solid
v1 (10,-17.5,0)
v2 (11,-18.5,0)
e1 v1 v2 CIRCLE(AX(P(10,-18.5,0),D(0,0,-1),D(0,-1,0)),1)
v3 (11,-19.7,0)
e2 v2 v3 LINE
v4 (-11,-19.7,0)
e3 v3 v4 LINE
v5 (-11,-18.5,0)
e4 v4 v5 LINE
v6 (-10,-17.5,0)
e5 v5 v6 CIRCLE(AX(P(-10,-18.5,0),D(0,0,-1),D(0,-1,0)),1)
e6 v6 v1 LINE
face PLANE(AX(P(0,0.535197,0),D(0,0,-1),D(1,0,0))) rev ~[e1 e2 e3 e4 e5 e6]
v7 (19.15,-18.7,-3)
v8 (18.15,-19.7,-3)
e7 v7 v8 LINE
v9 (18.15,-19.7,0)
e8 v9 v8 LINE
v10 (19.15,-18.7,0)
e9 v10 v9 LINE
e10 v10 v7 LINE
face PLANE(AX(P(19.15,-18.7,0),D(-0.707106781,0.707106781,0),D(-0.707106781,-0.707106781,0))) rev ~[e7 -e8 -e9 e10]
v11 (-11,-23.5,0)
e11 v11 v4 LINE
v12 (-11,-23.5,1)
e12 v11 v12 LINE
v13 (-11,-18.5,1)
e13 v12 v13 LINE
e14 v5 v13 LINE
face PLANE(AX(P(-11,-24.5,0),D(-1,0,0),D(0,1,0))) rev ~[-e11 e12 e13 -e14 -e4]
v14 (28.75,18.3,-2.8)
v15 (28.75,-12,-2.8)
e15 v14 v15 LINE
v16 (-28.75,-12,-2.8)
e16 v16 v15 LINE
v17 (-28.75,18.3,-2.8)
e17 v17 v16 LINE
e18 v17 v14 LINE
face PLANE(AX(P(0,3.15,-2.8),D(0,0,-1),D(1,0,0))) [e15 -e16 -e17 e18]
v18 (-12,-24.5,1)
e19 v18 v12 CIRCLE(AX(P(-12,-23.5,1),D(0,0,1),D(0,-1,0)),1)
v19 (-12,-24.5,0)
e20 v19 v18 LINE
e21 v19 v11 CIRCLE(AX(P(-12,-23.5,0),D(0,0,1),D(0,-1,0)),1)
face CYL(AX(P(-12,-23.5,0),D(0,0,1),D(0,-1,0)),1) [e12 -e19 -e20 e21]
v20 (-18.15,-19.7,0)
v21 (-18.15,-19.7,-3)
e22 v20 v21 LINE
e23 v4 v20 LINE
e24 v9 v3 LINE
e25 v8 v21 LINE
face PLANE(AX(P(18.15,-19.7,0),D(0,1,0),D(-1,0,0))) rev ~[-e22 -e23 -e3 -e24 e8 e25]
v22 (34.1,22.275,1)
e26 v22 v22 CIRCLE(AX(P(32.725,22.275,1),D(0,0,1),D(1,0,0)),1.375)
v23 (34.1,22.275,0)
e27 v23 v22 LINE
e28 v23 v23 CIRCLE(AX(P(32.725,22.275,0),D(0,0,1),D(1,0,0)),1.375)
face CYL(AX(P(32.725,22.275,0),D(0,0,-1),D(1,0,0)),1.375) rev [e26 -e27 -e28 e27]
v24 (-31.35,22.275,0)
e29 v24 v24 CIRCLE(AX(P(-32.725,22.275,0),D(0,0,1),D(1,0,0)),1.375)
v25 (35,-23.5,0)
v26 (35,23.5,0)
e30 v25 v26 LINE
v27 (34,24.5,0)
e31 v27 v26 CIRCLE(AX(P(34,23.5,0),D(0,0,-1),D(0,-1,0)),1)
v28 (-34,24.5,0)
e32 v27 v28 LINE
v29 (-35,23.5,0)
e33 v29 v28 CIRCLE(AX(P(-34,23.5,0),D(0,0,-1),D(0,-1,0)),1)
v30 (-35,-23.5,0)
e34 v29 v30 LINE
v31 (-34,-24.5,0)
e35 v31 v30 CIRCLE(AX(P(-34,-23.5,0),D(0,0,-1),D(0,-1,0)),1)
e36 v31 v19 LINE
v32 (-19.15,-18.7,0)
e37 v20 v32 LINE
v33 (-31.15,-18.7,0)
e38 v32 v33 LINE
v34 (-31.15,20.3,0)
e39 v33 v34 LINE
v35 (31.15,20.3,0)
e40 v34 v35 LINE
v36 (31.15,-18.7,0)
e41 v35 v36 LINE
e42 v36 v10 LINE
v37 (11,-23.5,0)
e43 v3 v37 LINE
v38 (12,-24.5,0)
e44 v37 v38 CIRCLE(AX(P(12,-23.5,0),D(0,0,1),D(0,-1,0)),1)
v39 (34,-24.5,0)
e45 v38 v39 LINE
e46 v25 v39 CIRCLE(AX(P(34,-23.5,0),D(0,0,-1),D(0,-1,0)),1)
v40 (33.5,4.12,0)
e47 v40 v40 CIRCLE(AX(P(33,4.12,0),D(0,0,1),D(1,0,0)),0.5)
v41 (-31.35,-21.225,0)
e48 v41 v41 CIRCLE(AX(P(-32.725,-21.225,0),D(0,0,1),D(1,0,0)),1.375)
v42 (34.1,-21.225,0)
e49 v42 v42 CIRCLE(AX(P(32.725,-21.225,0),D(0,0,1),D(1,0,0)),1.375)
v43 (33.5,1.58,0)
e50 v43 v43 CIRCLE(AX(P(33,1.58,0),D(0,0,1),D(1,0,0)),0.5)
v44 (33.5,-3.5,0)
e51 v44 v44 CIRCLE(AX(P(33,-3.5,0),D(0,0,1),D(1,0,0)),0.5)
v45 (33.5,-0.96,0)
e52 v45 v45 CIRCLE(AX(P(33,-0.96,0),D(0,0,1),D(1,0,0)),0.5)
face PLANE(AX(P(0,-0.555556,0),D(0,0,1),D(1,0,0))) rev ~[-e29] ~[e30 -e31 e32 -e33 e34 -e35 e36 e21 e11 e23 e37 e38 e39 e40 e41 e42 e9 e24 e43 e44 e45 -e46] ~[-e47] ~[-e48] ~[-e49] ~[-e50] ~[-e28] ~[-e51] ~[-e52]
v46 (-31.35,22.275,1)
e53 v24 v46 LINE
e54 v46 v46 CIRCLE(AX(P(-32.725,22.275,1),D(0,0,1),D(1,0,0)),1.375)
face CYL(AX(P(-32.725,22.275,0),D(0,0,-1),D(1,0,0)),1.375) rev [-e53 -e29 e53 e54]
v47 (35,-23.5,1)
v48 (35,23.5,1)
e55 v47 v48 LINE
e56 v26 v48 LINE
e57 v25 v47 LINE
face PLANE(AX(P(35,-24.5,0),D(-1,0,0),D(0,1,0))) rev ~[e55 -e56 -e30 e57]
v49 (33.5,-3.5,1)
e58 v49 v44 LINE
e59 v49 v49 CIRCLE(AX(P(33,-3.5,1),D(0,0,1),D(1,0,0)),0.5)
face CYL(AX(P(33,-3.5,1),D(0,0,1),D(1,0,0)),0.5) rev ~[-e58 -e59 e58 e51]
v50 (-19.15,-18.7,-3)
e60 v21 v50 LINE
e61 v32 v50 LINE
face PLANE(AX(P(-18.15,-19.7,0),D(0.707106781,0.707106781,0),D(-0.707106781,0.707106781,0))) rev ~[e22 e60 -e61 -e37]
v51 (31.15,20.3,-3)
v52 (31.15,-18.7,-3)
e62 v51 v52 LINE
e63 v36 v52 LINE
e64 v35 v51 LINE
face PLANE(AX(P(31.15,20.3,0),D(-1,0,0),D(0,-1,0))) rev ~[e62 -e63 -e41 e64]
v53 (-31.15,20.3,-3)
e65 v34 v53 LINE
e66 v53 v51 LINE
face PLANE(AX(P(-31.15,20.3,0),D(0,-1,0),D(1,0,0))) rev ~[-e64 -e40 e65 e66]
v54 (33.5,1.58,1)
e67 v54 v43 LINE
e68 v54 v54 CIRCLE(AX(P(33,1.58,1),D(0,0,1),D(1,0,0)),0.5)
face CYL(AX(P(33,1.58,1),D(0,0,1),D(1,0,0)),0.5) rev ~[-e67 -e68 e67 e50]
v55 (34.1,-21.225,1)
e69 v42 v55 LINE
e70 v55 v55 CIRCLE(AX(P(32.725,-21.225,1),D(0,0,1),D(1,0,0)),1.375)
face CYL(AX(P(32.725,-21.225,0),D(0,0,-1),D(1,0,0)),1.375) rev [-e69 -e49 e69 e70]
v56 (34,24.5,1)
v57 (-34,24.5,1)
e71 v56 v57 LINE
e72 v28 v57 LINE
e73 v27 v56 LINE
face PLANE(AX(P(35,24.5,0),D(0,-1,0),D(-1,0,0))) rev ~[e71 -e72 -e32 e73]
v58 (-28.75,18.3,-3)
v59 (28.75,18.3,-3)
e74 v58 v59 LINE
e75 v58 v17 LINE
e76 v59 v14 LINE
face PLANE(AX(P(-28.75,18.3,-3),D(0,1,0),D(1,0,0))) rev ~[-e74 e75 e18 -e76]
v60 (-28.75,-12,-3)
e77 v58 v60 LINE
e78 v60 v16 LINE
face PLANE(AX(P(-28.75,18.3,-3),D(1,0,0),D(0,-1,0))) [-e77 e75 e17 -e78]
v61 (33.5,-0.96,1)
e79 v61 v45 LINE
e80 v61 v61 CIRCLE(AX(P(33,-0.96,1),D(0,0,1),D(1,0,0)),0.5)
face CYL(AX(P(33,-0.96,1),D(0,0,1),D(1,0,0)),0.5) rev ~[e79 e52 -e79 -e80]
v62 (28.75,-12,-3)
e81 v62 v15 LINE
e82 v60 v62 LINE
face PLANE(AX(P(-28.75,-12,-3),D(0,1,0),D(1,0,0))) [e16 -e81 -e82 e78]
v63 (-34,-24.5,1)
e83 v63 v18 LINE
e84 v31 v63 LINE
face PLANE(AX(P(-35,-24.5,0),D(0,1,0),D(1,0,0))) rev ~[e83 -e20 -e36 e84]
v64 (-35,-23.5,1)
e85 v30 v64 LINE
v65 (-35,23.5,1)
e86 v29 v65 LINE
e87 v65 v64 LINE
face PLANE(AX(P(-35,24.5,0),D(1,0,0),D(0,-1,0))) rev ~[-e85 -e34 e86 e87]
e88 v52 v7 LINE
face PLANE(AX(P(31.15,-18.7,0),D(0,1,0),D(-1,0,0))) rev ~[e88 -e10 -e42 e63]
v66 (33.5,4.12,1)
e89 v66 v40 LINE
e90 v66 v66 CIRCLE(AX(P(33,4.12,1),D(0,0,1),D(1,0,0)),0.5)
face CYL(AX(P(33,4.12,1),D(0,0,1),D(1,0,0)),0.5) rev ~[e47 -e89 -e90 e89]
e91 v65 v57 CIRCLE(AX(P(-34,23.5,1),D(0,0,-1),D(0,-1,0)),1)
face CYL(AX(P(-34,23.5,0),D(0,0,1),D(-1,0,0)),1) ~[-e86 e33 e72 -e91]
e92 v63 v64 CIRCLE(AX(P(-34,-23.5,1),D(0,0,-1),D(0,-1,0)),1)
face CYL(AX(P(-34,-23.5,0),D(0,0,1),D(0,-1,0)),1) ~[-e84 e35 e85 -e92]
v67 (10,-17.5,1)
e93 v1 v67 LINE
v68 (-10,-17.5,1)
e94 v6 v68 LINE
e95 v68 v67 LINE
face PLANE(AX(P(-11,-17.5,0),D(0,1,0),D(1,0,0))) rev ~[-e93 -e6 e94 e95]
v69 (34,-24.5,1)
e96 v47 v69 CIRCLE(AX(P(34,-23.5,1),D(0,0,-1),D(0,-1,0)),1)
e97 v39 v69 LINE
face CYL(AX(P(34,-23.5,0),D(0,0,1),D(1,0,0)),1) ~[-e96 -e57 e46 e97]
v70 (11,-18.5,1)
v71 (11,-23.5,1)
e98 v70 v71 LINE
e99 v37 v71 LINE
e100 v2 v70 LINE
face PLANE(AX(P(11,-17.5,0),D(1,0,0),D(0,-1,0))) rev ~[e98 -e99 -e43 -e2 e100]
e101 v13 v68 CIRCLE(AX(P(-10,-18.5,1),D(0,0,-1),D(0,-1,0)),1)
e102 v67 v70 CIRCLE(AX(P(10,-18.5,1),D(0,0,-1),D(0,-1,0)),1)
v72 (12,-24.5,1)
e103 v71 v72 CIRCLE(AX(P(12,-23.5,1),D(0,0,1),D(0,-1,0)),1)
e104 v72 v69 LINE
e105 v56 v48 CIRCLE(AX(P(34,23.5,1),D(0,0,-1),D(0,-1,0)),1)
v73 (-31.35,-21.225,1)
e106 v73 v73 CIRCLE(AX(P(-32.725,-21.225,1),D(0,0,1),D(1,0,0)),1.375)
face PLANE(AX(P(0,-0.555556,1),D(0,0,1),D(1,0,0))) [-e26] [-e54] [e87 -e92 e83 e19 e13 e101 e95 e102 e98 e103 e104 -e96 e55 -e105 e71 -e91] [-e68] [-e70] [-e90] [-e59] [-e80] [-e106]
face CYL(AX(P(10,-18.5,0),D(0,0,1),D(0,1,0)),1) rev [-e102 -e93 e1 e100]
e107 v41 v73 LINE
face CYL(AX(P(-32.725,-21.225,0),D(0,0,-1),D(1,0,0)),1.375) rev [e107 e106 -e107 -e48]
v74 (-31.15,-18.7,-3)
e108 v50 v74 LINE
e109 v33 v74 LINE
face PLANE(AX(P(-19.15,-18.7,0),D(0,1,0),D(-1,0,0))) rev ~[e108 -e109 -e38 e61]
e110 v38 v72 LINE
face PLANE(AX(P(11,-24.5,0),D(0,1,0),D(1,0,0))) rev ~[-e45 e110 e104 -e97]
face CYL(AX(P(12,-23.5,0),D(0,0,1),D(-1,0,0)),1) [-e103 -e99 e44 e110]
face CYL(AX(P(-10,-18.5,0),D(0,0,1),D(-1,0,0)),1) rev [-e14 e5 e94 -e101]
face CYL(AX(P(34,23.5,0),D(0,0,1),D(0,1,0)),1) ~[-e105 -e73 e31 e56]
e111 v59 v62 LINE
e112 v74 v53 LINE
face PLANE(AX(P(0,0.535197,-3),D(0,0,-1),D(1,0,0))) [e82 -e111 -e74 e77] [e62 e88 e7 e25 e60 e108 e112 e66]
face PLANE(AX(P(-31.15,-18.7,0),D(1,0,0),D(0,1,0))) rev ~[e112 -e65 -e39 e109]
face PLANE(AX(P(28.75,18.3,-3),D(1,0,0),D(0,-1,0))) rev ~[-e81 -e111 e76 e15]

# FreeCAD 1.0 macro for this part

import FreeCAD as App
import Part
import Sketcher

V = App.Vector
Q = App.Units.Quantity


def edges_at(feature, points):
    """Names of the edges that pass closest to the given points."""
    edges = feature.Shape.Edges
    near = lambda p: min(range(len(edges)), key=lambda i: edges[i].distToShape(Part.Vertex(*p))[0])
    return sorted({f"Edge{near(p) + 1}" for p in points})


def add_polygon(sketch, points):
    """Adds a closed chain of lines whose ends are joined by coincident constraints."""
    first, n = sketch.GeometryCount, len(points)
    for a, b in zip(points, points[1:] + points[:1]):
        sketch.addGeometry(Part.LineSegment(App.Vector(*a, 0), App.Vector(*b, 0)), False)
    for i in range(n):
        sketch.addConstraint(Sketcher.Constraint("Coincident", first + i, 2, first + (i + 1) % n, 1))

doc = App.newDocument("Part")
params = doc.addObject("Spreadsheet::Sheet", "Params")
for row, (alias, value) in enumerate([
    ("sketch1_diameter", "2.75 mm"),
    ("sketch1_width", "24 mm"),
    ("sketch1_width2", "22 mm"),
    ("sketch1_height", "7 mm"),
    ("sketch1_height2", "49 mm"),
    ("pad1_length", "1 mm"),
    ("fillet_radius", "1 mm"),
    ("sketch2_width", "12 mm"),
    ("sketch2_height", "39 mm"),
    ("sketch2_width2", "62.3 mm"),
    ("sketch2_width3", "36.3 mm"),
    ("pad2_length", "3 mm"),
    ("sketch3_width", "57.5 mm"),
    ("sketch3_height", "30.3 mm"),
    ("pocket1_length", "0.2 mm"),
    ("sketch4_diameter", "1 mm"),
], start=1):
    params.set(f"A{row}", alias)
    params.set(f"B{row}", "=" + value)
    params.setAlias(f"B{row}", alias)

body = doc.addObject("PartDesign::Body", "Body")

# Sketch on XY plane
sketch1 = doc.addObject("Sketcher::SketchObject", "Sketch")
body.addObject(sketch1)
sketch1.AttachmentSupport = (doc.XY_Plane, [""])
sketch1.MapMode = "FlatFace"
add_polygon(sketch1, [(-35, -24.5), (-11, -24.5), (-11, -17.5), (11, -17.5), (11, -24.5), (35, -24.5), (35, 24.5), (-35, 24.5)])  # lines 0-7
sketch1.addGeometry(Part.Circle(V(-32.7, -21.2, 0), V(0, 0, 1), 1.4), False)  # 8
sketch1.addGeometry(Part.Circle(V(32.7, -21.2, 0), V(0, 0, 1), 1.4), False)  # 9
sketch1.addGeometry(Part.Circle(V(-32.7, 22.3, 0), V(0, 0, 1), 1.4), False)  # 10
sketch1.addGeometry(Part.Circle(V(32.7, 22.3, 0), V(0, 0, 1), 1.4), False)  # 11
sketch1.addConstraint([
    Sketcher.Constraint("Horizontal", 0),
    Sketcher.Constraint("Vertical", 1),
    Sketcher.Constraint("Horizontal", 2),
    Sketcher.Constraint("Vertical", 3),
    Sketcher.Constraint("Horizontal", 4),
    Sketcher.Constraint("Vertical", 5),
    Sketcher.Constraint("Horizontal", 6),
    Sketcher.Constraint("Vertical", 7),
    Sketcher.Constraint("Equal", 8, 9),
    Sketcher.Constraint("Equal", 9, 10),
    Sketcher.Constraint("Equal", 10, 11),
    Sketcher.Constraint("Symmetric", 4, 2, 6, 2, -1, 1),
    Sketcher.Constraint("Symmetric", 8, 3, 9, 3, -2),
    Sketcher.Constraint("Symmetric", 10, 3, 11, 3, -2),
    Sketcher.Constraint("Symmetric", 0, 2, 3, 2, -2),
    Sketcher.Constraint("Vertical", 8, 3, 10, 3),
    Sketcher.Constraint("Diameter", 8, Q("2.75 mm")),
    Sketcher.Constraint("DistanceX", 0, 1, 0, 2, Q("24 mm")),
    Sketcher.Constraint("DistanceX", 2, 1, 2, 2, Q("22 mm")),
    Sketcher.Constraint("DistanceY", 1, 1, 1, 2, Q("7 mm")),
    Sketcher.Constraint("DistanceY", 5, 1, 5, 2, Q("49 mm")),
    Sketcher.Constraint("DistanceY", 8, 3, 10, 3, Q("43.5 mm")),
    Sketcher.Constraint("DistanceX", 8, 3, 9, 3, Q("65.45 mm")),
    Sketcher.Constraint("DistanceY", 8, 3, -1, 1, Q("21.225 mm")),
])
sketch1.setExpression("Constraints[24]", "Params.sketch1_diameter")
sketch1.setExpression("Constraints[25]", "Params.sketch1_width")
sketch1.setExpression("Constraints[26]", "Params.sketch1_width2")
sketch1.setExpression("Constraints[27]", "Params.sketch1_height")
sketch1.setExpression("Constraints[28]", "Params.sketch1_height2")
pad1 = doc.addObject("PartDesign::Pad", "Pad")
body.addObject(pad1)
pad1.Profile = sketch1
pad1.setExpression("Length", "Params.pad1_length")
doc.recompute()

fillet = doc.addObject("PartDesign::Fillet", "Fillet")
body.addObject(fillet)
fillet.Base = (pad1, edges_at(pad1, [
    (-35, 24.5, 0.5),
    (35, 24.5, 0.5),
    (35, -24.5, 0.5),
    (-11, -17.5, 0.5),
    (-11, -24.5, 0.5),
    (11, -24.5, 0.5),
    (11, -17.5, 0.5),
    (-35, -24.5, 0.5),
]))
fillet.setExpression("Radius", "Params.fillet_radius")

# Sketch on XY plane
sketch2 = doc.addObject("Sketcher::SketchObject", "Sketch001")
body.addObject(sketch2)
sketch2.AttachmentSupport = (doc.XY_Plane, [""])
sketch2.MapMode = "FlatFace"
add_polygon(sketch2, [(-31.1, -18.7), (-31.1, 20.3), (31.1, 20.3), (31.1, -18.7), (19.1, -18.7), (18.1, -19.7), (-18.1, -19.7), (-19.1, -18.7)])  # lines 0-7
sketch2.addConstraint([
    Sketcher.Constraint("Vertical", 0),
    Sketcher.Constraint("Horizontal", 1),
    Sketcher.Constraint("Vertical", 2),
    Sketcher.Constraint("Horizontal", 3),
    Sketcher.Constraint("Horizontal", 5),
    Sketcher.Constraint("Horizontal", 7),
    Sketcher.Constraint("Symmetric", 3, 2, 6, 2, -2),
    Sketcher.Constraint("Perpendicular", 4, 6),
    Sketcher.Constraint("Equal", 3, 7),
    Sketcher.Constraint("Equal", 4, 6),
    Sketcher.Constraint("DistanceX", 3, 2, 3, 1, Q("12 mm")),
    Sketcher.Constraint("DistanceY", 0, 1, 0, 2, Q("39 mm")),
    Sketcher.Constraint("DistanceX", 1, 1, 1, 2, Q("62.3 mm")),
    Sketcher.Constraint("DistanceX", 5, 2, 5, 1, Q("36.3 mm")),
    Sketcher.Constraint("DistanceY", -1, 1, 0, 2, Q("20.3 mm")),
])
sketch2.setExpression("Constraints[18]", "Params.sketch2_width")
sketch2.setExpression("Constraints[19]", "Params.sketch2_height")
sketch2.setExpression("Constraints[20]", "Params.sketch2_width2")
sketch2.setExpression("Constraints[21]", "Params.sketch2_width3")
pad2 = doc.addObject("PartDesign::Pad", "Pad001")
body.addObject(pad2)
pad2.Profile = sketch2
pad2.setExpression("Length", "Params.pad2_length")
pad2.Reversed = True

# Sketch on XY plane
sketch3 = doc.addObject("Sketcher::SketchObject", "Sketch002")
body.addObject(sketch3)
sketch3.AttachmentSupport = (doc.XY_Plane, [""])
sketch3.MapMode = "FlatFace"
sketch3.AttachmentOffset = App.Placement(V(0, 0, -3), App.Rotation())
add_polygon(sketch3, [(-29, -12), (-29, 18), (29, 18), (29, -12)])  # lines 0-3
sketch3.addConstraint([
    Sketcher.Constraint("Vertical", 0),
    Sketcher.Constraint("Horizontal", 1),
    Sketcher.Constraint("Vertical", 2),
    Sketcher.Constraint("Horizontal", 3),
    Sketcher.Constraint("DistanceX", 1, 1, 1, 2, Q("57.5 mm")),
    Sketcher.Constraint("DistanceY", 0, 1, 0, 2, Q("30.3 mm")),
    Sketcher.Constraint("DistanceY", 2, 2, -1, 1, Q("12 mm")),
    Sketcher.Constraint("DistanceX", 0, 2, -1, 1, Q("28.75 mm")),
])
sketch3.setExpression("Constraints[8]", "Params.sketch3_width")
sketch3.setExpression("Constraints[9]", "Params.sketch3_height")
pocket1 = doc.addObject("PartDesign::Pocket", "Pocket")
body.addObject(pocket1)
pocket1.Profile = sketch3
pocket1.setExpression("Length", "Params.pocket1_length")
pocket1.Reversed = True

# Sketch on XY plane
sketch4 = doc.addObject("Sketcher::SketchObject", "Sketch003")
body.addObject(sketch4)
sketch4.AttachmentSupport = (doc.XY_Plane, [""])
sketch4.MapMode = "FlatFace"
sketch4.AttachmentOffset = App.Placement(V(0, 0, 1), App.Rotation())
sketch4.addGeometry([
    Part.Circle(V(33, -3.5, 0), V(0, 0, 1), 0.5),
    Part.Circle(V(33, -1, 0), V(0, 0, 1), 0.5),
    Part.Circle(V(33, 1.6, 0), V(0, 0, 1), 0.5),
    Part.Circle(V(33, 4.1, 0), V(0, 0, 1), 0.5),
], False)
sketch4.addConstraint([
    Sketcher.Constraint("Equal", 0, 1),
    Sketcher.Constraint("Equal", 1, 2),
    Sketcher.Constraint("Equal", 2, 3),
    Sketcher.Constraint("Vertical", 0, 3, 1, 3),
    Sketcher.Constraint("Vertical", 1, 3, 2, 3),
    Sketcher.Constraint("Vertical", 2, 3, 3, 3),
    Sketcher.Constraint("Diameter", 0, Q("1 mm")),
    Sketcher.Constraint("DistanceX", -1, 1, 0, 3, Q("33 mm")),
    Sketcher.Constraint("DistanceY", 0, 3, -1, 1, Q("3.5 mm")),
    Sketcher.Constraint("DistanceY", 1, 3, -1, 1, Q("0.96 mm")),
    Sketcher.Constraint("DistanceY", -1, 1, 2, 3, Q("1.58 mm")),
    Sketcher.Constraint("DistanceY", -1, 1, 3, 3, Q("4.12 mm")),
])
sketch4.setExpression("Constraints[6]", "Params.sketch4_diameter")
pocket2 = doc.addObject("PartDesign::Pocket", "Pocket001")
body.addObject(pocket2)
pocket2.Profile = sketch4
pocket2.Type = "ThroughAll"

doc.recompute()
